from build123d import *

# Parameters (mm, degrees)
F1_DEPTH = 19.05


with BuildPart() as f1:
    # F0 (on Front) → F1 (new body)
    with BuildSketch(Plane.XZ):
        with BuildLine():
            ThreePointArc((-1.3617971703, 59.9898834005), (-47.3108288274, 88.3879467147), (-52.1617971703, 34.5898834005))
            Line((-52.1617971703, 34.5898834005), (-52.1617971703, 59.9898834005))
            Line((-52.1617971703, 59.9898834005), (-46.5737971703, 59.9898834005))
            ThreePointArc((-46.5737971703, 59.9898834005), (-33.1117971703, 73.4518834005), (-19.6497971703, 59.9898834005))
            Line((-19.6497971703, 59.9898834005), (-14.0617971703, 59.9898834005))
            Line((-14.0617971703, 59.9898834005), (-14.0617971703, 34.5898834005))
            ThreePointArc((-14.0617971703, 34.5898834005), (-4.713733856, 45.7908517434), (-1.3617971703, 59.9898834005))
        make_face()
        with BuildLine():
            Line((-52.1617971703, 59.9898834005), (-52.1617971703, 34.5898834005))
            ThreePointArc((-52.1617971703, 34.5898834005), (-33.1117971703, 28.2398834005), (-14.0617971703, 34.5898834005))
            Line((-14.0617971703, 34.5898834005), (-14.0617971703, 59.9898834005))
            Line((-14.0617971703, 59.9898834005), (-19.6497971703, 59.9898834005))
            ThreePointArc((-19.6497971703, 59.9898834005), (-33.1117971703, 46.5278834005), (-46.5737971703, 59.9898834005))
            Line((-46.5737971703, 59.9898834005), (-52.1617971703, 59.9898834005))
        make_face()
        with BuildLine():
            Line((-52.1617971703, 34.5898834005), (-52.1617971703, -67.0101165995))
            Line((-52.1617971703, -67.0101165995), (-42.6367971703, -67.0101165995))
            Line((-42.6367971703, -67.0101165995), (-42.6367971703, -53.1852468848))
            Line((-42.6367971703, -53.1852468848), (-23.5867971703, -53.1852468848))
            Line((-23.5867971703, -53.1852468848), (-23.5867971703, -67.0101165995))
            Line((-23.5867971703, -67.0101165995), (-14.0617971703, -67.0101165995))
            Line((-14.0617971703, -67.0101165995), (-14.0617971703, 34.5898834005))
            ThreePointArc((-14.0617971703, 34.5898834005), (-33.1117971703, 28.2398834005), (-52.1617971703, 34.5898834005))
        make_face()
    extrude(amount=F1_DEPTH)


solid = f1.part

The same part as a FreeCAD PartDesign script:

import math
import FreeCAD as App
import Part
import Sketcher

V = App.Vector
Q = App.Units.Quantity

doc = App.newDocument("Part")
body = doc.addObject("PartDesign::Body", "Body")

sketch1 = body.newObject("Sketcher::SketchObject", "Sketch")
sketch1.AttachmentSupport = (doc.getObject("XZ_Plane"), [""])
sketch1.MapMode = "FlatFace"
sketch1.addGeometry(Part.ArcOfCircle(Part.Circle(V(-33, 60, 0), V(0, 0, 1), 32), math.radians(0), math.radians(233)), False)
sketch1.addGeometry(Part.LineSegment(V(-52, 35, 0), V(-52, -67, 0)), False)
sketch1.addGeometry(Part.LineSegment(V(-52, -67, 0), V(-43, -67, 0)), False)
sketch1.addGeometry(Part.LineSegment(V(-43, -67, 0), V(-43, -53, 0)), False)
sketch1.addGeometry(Part.LineSegment(V(-43, -53, 0), V(-24, -53, 0)), False)
sketch1.addGeometry(Part.LineSegment(V(-24, -53, 0), V(-24, -67, 0)), False)
sketch1.addGeometry(Part.LineSegment(V(-24, -67, 0), V(-14, -67, 0)), False)
sketch1.addGeometry(Part.LineSegment(V(-14, -67, 0), V(-14, 35, 0)), False)
sketch1.addGeometry(Part.ArcOfCircle(Part.Circle(V(-33, 60, 0), V(0, 0, 1), 32), math.radians(-53), math.radians(0)), False)
sketch1.addGeometry(Part.Circle(V(-33, 60, 0), V(0, 0, 1), 13), False)
sketch1.addConstraint(Sketcher.Constraint("Coincident", 0, 2, 1, 1))
sketch1.addConstraint(Sketcher.Constraint("Coincident", 1, 2, 2, 1))
sketch1.addConstraint(Sketcher.Constraint("Coincident", 2, 2, 3, 1))
sketch1.addConstraint(Sketcher.Constraint("Coincident", 3, 2, 4, 1))
sketch1.addConstraint(Sketcher.Constraint("Coincident", 4, 2, 5, 1))
sketch1.addConstraint(Sketcher.Constraint("Coincident", 5, 2, 6, 1))
sketch1.addConstraint(Sketcher.Constraint("Coincident", 6, 2, 7, 1))
sketch1.addConstraint(Sketcher.Constraint("Coincident", 7, 2, 8, 1))
sketch1.addConstraint(Sketcher.Constraint("Tangent", 8, 2, 0, 1))
sketch1.addConstraint(Sketcher.Constraint("Vertical", 1))
sketch1.addConstraint(Sketcher.Constraint("Horizontal", 2))
sketch1.addConstraint(Sketcher.Constraint("Vertical", 3))
sketch1.addConstraint(Sketcher.Constraint("Horizontal", 4))
sketch1.addConstraint(Sketcher.Constraint("Vertical", 5))
sketch1.addConstraint(Sketcher.Constraint("Horizontal", 6))
sketch1.addConstraint(Sketcher.Constraint("Vertical", 7))
sketch1.addConstraint(Sketcher.Constraint("Coincident", 9, 3, 0, 3))
sketch1.addConstraint(Sketcher.Constraint("Equal", 0, 8))
sketch1.addConstraint(Sketcher.Constraint("Horizontal", 2, 2, 5, 2))
sketch1.addConstraint(Sketcher.Constraint("Horizontal", 0, 2, 7, 2))
sketch1.addConstraint(Sketcher.Constraint("Horizontal", 9, 3, 8, 2))
sketch1.addConstraint(Sketcher.Constraint("Equal", 2, 6))
sketch1.addConstraint(Sketcher.Constraint("Diameter", 9, Q("1.06 in")))
sketch1.addConstraint(Sketcher.Constraint("DistanceY", 1, 2, 1, 1, Q("4 in")))
sketch1.addConstraint(Sketcher.Constraint("Radius", 0, Q("1.25 in")))
sketch1.addConstraint(Sketcher.Constraint("DistanceY", 0, 2, 0, 3, Q("1 in")))
sketch1.addConstraint(Sketcher.Constraint("DistanceX", 4, 1, 4, 2, Q("0.75 in")))
sketch1.addConstraint(Sketcher.Constraint("DistanceY", 3, 1, 3, 2, Q("13.82487 mm")))
sketch1.addConstraint(Sketcher.Constraint("DistanceX", 0, 3, -1, 1, Q("33.111797 mm")))
sketch1.addConstraint(Sketcher.Constraint("DistanceY", -1, 1, 0, 3, Q("59.989883 mm")))
pad1 = body.newObject("PartDesign::Pad", "Pad")
pad1.Profile = sketch1
pad1.Length = Q("0.75 in")

doc.recompute()
